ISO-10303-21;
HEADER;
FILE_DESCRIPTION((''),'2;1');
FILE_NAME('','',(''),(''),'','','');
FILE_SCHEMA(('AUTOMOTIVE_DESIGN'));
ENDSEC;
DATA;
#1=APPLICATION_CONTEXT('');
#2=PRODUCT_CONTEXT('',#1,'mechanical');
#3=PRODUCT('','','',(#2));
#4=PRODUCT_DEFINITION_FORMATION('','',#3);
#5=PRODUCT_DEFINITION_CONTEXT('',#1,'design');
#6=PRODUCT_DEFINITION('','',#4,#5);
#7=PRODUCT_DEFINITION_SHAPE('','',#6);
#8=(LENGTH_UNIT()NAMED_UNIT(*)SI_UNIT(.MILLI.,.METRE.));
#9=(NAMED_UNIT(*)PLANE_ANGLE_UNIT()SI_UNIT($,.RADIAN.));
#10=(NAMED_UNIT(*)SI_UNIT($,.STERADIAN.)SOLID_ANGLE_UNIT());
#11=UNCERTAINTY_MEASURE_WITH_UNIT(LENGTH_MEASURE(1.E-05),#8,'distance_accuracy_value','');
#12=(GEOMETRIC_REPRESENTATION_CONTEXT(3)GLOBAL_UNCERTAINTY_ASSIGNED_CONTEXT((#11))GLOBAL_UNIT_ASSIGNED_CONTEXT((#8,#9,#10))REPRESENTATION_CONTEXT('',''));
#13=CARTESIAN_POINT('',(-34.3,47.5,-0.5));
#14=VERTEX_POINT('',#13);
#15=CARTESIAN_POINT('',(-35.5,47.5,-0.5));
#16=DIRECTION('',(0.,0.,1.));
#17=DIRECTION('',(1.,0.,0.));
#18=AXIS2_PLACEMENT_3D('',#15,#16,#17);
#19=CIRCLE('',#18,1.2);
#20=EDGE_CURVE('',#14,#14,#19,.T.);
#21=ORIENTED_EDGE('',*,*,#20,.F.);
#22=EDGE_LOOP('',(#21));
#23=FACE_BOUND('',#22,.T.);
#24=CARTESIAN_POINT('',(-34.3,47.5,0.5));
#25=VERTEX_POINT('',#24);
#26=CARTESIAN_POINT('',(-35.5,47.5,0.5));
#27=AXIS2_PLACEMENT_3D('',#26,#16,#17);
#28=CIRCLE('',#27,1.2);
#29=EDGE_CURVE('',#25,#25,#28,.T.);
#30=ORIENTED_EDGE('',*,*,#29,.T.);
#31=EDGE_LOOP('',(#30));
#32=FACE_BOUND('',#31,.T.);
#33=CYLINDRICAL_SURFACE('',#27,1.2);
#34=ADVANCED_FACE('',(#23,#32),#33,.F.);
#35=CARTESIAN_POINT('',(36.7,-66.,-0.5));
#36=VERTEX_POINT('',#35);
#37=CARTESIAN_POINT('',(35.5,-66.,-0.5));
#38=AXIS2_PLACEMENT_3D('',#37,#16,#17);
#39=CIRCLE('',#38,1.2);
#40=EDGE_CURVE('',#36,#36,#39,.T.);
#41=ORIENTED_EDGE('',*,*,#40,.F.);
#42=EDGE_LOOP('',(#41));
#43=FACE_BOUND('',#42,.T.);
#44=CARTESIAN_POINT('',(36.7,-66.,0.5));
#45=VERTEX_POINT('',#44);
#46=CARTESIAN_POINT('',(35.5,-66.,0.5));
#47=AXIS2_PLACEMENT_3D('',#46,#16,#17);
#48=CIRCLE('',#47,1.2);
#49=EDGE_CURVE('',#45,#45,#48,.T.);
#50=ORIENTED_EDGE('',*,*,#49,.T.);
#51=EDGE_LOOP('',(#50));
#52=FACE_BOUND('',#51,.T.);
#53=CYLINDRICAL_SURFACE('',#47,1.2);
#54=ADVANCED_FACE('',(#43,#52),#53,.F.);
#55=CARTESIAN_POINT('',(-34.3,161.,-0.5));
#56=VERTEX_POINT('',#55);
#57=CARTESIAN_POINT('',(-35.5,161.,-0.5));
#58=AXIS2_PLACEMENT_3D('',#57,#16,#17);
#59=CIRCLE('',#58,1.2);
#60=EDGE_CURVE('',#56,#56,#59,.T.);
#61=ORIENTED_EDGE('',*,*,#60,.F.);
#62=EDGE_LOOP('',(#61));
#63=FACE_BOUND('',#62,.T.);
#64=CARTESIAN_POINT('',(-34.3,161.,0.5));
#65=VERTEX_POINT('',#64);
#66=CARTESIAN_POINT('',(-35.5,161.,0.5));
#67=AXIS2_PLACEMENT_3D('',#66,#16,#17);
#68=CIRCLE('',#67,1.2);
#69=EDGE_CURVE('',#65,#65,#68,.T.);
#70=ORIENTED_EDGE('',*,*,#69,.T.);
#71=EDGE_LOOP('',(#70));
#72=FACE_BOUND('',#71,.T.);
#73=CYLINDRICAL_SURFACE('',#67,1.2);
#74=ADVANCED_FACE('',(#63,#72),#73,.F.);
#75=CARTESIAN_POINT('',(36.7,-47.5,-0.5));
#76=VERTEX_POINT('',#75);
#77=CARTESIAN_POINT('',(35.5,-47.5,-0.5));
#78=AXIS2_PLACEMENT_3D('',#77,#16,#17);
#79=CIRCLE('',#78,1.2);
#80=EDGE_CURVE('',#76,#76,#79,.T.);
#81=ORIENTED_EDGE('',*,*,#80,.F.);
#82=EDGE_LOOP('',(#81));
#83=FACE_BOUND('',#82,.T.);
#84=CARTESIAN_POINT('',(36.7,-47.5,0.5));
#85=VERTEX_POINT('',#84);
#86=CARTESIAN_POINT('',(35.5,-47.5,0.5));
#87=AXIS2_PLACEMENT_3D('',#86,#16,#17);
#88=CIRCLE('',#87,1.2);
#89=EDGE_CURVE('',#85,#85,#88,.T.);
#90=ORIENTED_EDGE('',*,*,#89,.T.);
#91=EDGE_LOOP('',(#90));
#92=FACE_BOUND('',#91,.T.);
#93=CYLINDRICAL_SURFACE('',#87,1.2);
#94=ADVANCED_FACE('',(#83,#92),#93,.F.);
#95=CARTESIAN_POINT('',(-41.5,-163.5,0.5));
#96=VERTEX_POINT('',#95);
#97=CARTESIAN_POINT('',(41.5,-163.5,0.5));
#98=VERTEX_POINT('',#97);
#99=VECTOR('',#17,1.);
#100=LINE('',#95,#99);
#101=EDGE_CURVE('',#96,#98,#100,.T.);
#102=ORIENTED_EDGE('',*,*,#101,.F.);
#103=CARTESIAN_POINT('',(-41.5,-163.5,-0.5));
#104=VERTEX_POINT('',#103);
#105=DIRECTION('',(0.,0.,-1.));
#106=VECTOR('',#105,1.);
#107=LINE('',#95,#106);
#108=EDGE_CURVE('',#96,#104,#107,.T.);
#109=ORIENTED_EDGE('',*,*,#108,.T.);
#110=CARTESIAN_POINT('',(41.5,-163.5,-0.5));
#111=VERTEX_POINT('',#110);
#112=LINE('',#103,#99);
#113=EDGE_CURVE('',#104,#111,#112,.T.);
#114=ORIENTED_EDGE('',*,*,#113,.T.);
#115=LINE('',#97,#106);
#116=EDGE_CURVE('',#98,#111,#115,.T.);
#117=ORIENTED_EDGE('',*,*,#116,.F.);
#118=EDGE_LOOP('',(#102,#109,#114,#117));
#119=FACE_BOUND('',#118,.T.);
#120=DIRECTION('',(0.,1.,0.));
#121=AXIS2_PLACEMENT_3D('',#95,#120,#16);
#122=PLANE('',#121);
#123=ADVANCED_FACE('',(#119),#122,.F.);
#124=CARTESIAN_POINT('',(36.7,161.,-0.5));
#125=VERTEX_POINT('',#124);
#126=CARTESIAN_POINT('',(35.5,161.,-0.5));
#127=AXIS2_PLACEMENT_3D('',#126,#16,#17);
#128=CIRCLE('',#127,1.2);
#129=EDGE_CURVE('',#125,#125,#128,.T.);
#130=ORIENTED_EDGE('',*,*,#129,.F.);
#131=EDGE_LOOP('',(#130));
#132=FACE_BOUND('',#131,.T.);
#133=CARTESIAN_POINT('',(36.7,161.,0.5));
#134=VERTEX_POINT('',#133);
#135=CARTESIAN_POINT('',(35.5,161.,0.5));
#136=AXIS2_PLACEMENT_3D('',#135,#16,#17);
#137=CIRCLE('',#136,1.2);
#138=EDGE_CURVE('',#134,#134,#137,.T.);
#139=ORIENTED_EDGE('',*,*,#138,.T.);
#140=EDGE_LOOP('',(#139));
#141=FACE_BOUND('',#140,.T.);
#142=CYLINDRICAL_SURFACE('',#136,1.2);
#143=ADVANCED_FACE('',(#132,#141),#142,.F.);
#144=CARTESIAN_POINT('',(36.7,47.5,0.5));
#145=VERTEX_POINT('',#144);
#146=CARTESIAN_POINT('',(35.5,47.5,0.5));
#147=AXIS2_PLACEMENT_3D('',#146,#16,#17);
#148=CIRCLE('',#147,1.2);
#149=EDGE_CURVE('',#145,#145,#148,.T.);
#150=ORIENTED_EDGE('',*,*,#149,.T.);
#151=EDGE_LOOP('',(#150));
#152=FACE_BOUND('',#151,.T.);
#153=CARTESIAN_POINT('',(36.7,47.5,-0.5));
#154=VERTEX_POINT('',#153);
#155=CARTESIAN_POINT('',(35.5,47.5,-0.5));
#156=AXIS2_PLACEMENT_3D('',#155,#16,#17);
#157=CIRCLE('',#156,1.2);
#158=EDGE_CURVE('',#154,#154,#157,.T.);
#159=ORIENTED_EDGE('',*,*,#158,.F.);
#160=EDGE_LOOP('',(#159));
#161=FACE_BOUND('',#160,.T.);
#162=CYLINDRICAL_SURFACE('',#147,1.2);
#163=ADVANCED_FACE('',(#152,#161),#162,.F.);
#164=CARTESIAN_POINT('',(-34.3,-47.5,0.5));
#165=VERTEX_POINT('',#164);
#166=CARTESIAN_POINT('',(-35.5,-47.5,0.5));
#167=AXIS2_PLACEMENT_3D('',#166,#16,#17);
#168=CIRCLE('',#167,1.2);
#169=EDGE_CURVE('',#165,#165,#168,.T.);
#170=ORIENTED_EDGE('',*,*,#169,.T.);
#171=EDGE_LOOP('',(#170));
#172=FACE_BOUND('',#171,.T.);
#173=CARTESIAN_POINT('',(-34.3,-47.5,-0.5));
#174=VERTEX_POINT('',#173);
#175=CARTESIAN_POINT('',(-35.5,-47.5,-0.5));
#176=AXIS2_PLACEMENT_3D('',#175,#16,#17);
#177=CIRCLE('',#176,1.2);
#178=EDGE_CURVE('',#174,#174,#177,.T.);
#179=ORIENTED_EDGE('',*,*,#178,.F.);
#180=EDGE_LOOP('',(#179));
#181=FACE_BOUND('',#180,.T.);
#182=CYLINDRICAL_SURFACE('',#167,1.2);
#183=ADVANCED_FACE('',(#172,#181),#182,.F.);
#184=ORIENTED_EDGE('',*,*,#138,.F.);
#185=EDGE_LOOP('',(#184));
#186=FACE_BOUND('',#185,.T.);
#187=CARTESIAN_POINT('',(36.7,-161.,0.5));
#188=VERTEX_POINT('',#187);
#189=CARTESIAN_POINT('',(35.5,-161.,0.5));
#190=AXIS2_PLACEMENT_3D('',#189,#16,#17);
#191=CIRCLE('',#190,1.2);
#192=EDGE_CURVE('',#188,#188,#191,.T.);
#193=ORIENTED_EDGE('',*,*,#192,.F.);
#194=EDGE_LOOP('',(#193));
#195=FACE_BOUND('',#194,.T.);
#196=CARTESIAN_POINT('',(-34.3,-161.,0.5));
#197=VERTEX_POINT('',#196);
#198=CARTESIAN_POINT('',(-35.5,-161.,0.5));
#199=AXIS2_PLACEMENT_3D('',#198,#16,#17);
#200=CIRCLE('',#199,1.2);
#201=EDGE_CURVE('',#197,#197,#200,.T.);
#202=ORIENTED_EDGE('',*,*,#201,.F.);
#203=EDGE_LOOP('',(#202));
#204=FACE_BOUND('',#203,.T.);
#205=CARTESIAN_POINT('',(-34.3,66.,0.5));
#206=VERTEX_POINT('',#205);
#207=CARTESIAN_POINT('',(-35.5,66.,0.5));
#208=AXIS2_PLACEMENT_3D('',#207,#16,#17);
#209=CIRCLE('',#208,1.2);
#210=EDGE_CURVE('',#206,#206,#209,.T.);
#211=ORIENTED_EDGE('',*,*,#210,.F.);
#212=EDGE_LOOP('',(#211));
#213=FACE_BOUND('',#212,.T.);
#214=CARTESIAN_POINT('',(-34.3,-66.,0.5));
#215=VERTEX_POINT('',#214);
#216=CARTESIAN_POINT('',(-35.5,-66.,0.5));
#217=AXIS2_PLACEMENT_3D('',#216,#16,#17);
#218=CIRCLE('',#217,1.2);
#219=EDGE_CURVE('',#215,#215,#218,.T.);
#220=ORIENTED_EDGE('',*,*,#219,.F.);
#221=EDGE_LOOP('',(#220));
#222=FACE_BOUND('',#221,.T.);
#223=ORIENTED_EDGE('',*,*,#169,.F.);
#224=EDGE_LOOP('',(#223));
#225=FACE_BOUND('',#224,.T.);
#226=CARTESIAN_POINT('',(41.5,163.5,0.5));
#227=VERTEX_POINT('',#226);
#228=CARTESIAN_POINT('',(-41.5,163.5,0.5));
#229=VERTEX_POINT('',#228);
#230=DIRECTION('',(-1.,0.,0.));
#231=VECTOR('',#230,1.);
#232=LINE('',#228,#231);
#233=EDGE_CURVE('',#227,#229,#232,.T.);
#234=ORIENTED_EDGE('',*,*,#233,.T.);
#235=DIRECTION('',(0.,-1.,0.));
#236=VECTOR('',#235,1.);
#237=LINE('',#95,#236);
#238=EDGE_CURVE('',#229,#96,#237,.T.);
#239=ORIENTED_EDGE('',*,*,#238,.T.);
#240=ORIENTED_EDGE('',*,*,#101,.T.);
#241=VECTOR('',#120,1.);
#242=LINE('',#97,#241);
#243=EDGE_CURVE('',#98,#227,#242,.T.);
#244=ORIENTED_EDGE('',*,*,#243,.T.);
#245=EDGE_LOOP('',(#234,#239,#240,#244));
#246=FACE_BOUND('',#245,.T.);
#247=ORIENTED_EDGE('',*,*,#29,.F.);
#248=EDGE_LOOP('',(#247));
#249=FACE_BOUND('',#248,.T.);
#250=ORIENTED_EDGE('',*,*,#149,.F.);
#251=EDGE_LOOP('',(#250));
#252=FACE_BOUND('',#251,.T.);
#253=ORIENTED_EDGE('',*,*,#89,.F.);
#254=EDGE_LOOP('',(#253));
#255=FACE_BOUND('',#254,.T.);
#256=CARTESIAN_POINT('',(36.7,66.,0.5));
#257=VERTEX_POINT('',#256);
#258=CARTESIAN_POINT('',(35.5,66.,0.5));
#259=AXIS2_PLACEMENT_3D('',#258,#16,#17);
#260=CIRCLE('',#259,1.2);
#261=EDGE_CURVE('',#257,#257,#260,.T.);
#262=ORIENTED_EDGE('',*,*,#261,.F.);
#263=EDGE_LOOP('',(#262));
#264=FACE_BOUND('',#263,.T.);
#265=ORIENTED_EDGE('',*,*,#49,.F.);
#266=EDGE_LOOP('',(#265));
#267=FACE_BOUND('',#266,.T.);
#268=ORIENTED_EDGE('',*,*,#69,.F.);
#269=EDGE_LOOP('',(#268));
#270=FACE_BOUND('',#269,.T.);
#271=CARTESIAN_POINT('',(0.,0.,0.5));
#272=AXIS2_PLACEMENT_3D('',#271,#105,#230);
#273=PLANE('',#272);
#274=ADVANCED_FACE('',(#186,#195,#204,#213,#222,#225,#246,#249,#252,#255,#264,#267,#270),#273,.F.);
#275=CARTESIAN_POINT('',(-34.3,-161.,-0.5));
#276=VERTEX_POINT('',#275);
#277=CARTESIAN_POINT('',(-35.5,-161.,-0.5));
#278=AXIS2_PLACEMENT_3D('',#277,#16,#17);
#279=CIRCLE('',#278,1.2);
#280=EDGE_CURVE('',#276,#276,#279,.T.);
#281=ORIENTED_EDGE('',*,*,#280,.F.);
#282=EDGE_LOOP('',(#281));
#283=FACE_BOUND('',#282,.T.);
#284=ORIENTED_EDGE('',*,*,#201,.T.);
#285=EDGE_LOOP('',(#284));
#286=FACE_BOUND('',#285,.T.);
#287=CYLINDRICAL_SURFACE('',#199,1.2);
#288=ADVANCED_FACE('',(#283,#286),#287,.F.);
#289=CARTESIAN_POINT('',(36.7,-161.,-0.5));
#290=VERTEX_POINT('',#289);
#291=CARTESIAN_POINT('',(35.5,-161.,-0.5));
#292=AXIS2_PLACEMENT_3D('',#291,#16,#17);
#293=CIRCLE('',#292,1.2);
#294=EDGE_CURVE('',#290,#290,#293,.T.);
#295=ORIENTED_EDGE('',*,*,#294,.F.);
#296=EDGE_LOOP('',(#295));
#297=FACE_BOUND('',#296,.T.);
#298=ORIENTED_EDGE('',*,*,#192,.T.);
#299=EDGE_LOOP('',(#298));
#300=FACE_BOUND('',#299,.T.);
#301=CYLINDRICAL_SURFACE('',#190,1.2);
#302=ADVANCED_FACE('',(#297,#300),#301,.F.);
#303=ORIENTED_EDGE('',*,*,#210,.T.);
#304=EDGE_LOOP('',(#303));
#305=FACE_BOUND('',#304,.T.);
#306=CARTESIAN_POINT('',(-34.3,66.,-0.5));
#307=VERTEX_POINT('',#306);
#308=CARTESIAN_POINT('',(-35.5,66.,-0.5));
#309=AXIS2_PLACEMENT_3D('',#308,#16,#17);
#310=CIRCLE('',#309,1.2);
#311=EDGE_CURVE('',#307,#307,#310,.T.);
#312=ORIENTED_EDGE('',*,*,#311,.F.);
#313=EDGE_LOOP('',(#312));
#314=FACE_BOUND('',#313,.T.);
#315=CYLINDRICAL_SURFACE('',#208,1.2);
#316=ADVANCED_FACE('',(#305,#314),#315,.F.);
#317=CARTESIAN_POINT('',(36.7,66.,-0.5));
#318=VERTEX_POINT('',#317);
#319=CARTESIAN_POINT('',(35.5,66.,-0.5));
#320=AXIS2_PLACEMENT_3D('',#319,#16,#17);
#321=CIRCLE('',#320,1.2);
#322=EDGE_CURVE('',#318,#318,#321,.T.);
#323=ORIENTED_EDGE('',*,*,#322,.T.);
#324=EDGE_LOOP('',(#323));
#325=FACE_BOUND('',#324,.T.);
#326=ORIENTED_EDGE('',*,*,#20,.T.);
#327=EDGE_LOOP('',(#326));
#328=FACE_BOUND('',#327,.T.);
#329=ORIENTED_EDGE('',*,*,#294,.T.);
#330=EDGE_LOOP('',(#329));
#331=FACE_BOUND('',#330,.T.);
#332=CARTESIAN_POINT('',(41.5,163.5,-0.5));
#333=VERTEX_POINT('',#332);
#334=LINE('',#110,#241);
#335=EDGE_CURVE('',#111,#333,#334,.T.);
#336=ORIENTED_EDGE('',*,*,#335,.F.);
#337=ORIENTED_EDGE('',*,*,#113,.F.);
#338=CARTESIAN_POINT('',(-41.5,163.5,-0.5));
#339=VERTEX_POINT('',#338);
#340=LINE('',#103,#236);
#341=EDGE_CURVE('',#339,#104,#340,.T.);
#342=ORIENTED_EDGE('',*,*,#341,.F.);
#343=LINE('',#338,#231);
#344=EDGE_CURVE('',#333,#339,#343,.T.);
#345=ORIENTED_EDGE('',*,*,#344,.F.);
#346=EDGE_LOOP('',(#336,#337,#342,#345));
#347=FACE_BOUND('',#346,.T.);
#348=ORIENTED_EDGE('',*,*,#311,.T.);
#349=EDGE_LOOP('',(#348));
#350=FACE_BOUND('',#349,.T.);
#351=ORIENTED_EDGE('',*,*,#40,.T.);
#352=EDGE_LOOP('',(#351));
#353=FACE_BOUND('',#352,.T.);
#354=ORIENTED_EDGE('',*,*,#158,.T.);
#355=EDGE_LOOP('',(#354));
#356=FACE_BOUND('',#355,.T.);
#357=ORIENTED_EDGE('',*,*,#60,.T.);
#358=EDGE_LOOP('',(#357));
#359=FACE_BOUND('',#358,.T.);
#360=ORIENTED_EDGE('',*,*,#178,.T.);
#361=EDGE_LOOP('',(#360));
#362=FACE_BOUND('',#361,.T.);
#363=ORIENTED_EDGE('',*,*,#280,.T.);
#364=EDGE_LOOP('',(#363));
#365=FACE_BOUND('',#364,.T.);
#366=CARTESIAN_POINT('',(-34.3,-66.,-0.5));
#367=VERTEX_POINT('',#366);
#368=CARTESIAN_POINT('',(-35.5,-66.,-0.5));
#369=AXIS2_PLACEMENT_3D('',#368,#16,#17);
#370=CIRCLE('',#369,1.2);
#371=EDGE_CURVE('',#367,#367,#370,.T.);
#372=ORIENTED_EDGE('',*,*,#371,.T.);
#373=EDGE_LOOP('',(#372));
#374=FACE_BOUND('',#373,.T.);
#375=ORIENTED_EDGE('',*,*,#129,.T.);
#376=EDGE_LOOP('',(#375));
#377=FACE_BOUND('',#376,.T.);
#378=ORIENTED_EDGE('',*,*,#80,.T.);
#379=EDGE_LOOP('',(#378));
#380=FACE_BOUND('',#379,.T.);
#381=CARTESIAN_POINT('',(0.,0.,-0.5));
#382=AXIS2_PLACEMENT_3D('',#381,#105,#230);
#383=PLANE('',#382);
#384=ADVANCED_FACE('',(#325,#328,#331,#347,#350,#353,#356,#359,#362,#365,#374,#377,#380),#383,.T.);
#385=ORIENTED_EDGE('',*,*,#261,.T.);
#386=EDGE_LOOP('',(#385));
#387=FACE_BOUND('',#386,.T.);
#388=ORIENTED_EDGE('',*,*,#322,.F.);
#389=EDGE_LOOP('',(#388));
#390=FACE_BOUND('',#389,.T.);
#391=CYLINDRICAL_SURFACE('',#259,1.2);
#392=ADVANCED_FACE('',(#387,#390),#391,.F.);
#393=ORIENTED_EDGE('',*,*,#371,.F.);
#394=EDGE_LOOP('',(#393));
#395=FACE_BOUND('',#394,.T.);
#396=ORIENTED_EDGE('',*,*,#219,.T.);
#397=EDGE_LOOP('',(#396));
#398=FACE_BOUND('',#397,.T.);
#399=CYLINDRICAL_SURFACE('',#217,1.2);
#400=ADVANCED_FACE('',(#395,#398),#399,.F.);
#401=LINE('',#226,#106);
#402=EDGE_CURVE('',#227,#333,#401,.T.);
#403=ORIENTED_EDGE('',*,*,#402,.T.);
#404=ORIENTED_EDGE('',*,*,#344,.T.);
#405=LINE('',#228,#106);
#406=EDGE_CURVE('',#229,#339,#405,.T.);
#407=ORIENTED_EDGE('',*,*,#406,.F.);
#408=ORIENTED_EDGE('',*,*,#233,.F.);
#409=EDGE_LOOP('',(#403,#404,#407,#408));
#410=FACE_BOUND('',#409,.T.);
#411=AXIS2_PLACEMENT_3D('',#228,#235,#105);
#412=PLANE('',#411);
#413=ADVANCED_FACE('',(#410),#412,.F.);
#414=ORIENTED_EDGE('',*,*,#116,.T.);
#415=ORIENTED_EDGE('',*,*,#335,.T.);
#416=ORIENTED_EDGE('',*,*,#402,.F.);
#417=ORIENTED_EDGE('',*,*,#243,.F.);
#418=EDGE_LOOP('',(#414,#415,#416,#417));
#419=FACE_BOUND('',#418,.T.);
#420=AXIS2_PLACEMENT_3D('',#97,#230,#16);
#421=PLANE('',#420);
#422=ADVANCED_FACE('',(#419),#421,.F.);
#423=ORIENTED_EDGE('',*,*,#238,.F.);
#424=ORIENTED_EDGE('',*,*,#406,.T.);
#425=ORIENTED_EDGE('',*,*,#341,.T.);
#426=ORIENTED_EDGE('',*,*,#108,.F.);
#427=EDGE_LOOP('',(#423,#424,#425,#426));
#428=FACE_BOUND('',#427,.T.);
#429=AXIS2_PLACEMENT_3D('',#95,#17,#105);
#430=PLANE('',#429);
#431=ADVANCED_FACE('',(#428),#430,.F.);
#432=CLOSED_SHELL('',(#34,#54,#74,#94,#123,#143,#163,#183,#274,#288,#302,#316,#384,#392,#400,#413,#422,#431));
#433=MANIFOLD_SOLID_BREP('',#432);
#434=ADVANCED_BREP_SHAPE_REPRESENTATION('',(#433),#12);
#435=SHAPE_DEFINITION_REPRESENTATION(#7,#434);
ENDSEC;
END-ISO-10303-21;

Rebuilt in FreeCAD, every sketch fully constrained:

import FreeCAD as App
import Part
import Sketcher

doc = App.newDocument("Part")
body = doc.addObject("PartDesign::Body", "Body")

sketch1 = body.newObject("Sketcher::SketchObject", "Sketch")
sketch1.AttachmentSupport = (doc.getObject("XY_Plane"), [""])
sketch1.MapMode = "FlatFace"
sketch1.addGeometry([
    Part.LineSegment(App.Vector(-42, 164, 0), App.Vector(-42, -164, 0)),
    Part.LineSegment(App.Vector(-42, -164, 0), App.Vector(42, -164, 0)),
    Part.LineSegment(App.Vector(42, -164, 0), App.Vector(42, 164, 0)),
    Part.LineSegment(App.Vector(42, 164, 0), App.Vector(-42, 164, 0)),
], False)
sketch1.addConstraint([
    Sketcher.Constraint("Coincident", 0, 2, 1, 1),
    Sketcher.Constraint("Coincident", 1, 2, 2, 1),
    Sketcher.Constraint("Coincident", 2, 2, 3, 1),
    Sketcher.Constraint("Coincident", 3, 2, 0, 1),
    Sketcher.Constraint("Vertical", 0),
    Sketcher.Constraint("Horizontal", 1),
    Sketcher.Constraint("Vertical", 2),
    Sketcher.Constraint("Horizontal", 3),
    Sketcher.Constraint("Symmetric", 0, 2, 2, 2, -1, 1),
    Sketcher.Constraint("DistanceX", 1, 1, 1, 2, 83.0),
    Sketcher.Constraint("DistanceY", 0, 2, 0, 1, 327.0),
])
pad1 = body.newObject("PartDesign::Pad", "Pad")
pad1.Profile = sketch1
pad1.Length = 1
pad1.Midplane = True

sketch2 = body.newObject("Sketcher::SketchObject", "Sketch001")
sketch2.AttachmentSupport = (doc.getObject("XY_Plane"), [""])
sketch2.MapMode = "FlatFace"
sketch2.AttachmentOffset = App.Placement(App.Vector(0, 0, 0.5), App.Rotation())
sketch2.addGeometry([
    Part.Circle(App.Vector(-35.5, 161, 0), App.Vector(0, 0, 1), 1.2),
    Part.Circle(App.Vector(35.5, 161, 0), App.Vector(0, 0, 1), 1.2),
    Part.Circle(App.Vector(-35.5, 66, 0), App.Vector(0, 0, 1), 1.2),
    Part.Circle(App.Vector(35.5, 66, 0), App.Vector(0, 0, 1), 1.2),
    Part.Circle(App.Vector(-35.5, 47.5, 0), App.Vector(0, 0, 1), 1.2),
    Part.Circle(App.Vector(35.5, 47.5, 0), App.Vector(0, 0, 1), 1.2),
    Part.Circle(App.Vector(-35.5, -47.5, 0), App.Vector(0, 0, 1), 1.2),
    Part.Circle(App.Vector(35.5, -47.5, 0), App.Vector(0, 0, 1), 1.2),
    Part.Circle(App.Vector(-35.5, -66, 0), App.Vector(0, 0, 1), 1.2),
    Part.Circle(App.Vector(35.5, -66, 0), App.Vector(0, 0, 1), 1.2),
    Part.Circle(App.Vector(-35.5, -161, 0), App.Vector(0, 0, 1), 1.2),
    Part.Circle(App.Vector(35.5, -161, 0), App.Vector(0, 0, 1), 1.2),
], False)
sketch2.addConstraint([
    Sketcher.Constraint("Equal", 0, 1),
    Sketcher.Constraint("Equal", 1, 2),
    Sketcher.Constraint("Equal", 2, 3),
    Sketcher.Constraint("Equal", 3, 4),
    Sketcher.Constraint("Equal", 4, 5),
    Sketcher.Constraint("Equal", 5, 6),
    Sketcher.Constraint("Equal", 6, 7),
    Sketcher.Constraint("Equal", 7, 8),
    Sketcher.Constraint("Equal", 8, 9),
    Sketcher.Constraint("Equal", 9, 10),
    Sketcher.Constraint("Equal", 10, 11),
    Sketcher.Constraint("Symmetric", 5, 3, 6, 3, -1, 1),
    Sketcher.Constraint("Symmetric", 4, 3, 7, 3, -1, 1),
    Sketcher.Constraint("Symmetric", 3, 3, 8, 3, -1, 1),
    Sketcher.Constraint("Symmetric", 2, 3, 9, 3, -1, 1),
    Sketcher.Constraint("Symmetric", 1, 3, 10, 3, -1, 1),
    Sketcher.Constraint("Symmetric", 0, 3, 11, 3, -1, 1),
    Sketcher.Constraint("Symmetric", 0, 3, 1, 3, -2),
    Sketcher.Constraint("Symmetric", 2, 3, 3, 3, -2),
    Sketcher.Constraint("Symmetric", 4, 3, 5, 3, -2),
    Sketcher.Constraint("Vertical", 0, 3, 2, 3),
    Sketcher.Constraint("Vertical", 2, 3, 4, 3),
    Sketcher.Constraint("Diameter", 0, 2.4),
    Sketcher.Constraint("DistanceY", -1, 1, 0, 3, 161.0),
    Sketcher.Constraint("DistanceY", -1, 1, 2, 3, 66.0),
    Sketcher.Constraint("DistanceX", 0, 3, 1, 3, 71.0),
    Sketcher.Constraint("DistanceY", 6, 3, 4, 3, 95.0),
])
doc.recompute()
hole = body.newObject("PartDesign::Hole", "Hole")
hole.Profile = sketch2
hole.ThreadType = "None"
hole.Diameter = 2.4
hole.DepthType = "ThroughAll"

doc.recompute()
